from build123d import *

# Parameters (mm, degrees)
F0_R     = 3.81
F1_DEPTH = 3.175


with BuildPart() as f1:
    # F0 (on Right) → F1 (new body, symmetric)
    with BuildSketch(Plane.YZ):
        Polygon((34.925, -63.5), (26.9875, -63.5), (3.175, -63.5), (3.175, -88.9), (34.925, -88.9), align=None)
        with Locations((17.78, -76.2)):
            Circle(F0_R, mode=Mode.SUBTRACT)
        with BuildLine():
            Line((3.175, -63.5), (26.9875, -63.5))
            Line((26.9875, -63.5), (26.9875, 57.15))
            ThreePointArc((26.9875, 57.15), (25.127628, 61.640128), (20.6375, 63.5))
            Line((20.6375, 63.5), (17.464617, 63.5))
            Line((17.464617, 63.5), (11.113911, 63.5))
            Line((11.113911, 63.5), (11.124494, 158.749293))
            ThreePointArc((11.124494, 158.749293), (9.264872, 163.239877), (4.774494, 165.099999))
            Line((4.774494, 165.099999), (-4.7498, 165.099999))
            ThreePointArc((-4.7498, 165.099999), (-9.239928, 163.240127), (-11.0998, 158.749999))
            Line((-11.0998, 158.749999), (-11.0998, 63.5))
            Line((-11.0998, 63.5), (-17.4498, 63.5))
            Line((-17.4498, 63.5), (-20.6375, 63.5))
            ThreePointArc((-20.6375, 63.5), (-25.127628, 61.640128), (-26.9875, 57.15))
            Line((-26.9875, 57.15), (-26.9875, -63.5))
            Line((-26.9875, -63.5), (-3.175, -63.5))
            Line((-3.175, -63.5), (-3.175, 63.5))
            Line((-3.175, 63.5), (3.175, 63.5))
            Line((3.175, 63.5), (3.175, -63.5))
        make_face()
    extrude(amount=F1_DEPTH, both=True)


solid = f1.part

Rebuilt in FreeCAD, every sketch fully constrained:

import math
import FreeCAD as App
import Part
import Sketcher
Q = App.Units.Quantity

doc = App.newDocument("Part")
body = doc.addObject("PartDesign::Body", "Body")

# Sketch on YZ plane
sketch1 = body.newObject("Sketcher::SketchObject", "Sketch")
sketch1.AttachmentSupport = (doc.getObject("YZ_Plane"), [""])
sketch1.MapMode = "FlatFace"
sketch1.addGeometry([
    Part.LineSegment(App.Vector(34.925, -63.5, 0), App.Vector(26.9875, -63.5, 0)),  # 0
    Part.LineSegment(App.Vector(26.9875, -63.5, 0), App.Vector(26.9875, 57.15, 0)),  # 1
    Part.ArcOfCircle(Part.Circle(App.Vector(20.6375, 57.15, 0), App.Vector(0, 0, 1), 6.35), math.radians(0.000002), math.radians(89.999998)),  # 2
    Part.LineSegment(App.Vector(20.6375, 63.5, 0), App.Vector(11.113911, 63.5, 0)),  # 3
    Part.LineSegment(App.Vector(11.113911, 63.5, 0), App.Vector(11.124494, 158.749293, 0)),  # 4
    Part.ArcOfCircle(Part.Circle(App.Vector(4.774494, 158.749999, 0), App.Vector(0, 0, 1), 6.35), math.radians(-0.006368), math.radians(89.999998)),  # 5
    Part.LineSegment(App.Vector(4.774494, 165.099999, 0), App.Vector(-4.7498, 165.099999, 0)),  # 6
    Part.ArcOfCircle(Part.Circle(App.Vector(-4.7498, 158.749999, 0), App.Vector(0, 0, 1), 6.35), math.radians(90.000002), math.radians(179.999998)),  # 7
    Part.LineSegment(App.Vector(-11.0998, 158.749999, 0), App.Vector(-11.0998, 63.5, 0)),  # 8
    Part.LineSegment(App.Vector(-11.0998, 63.5, 0), App.Vector(-20.6375, 63.5, 0)),  # 9
    Part.ArcOfCircle(Part.Circle(App.Vector(-20.6375, 57.15, 0), App.Vector(0, 0, 1), 6.35), math.radians(90.000002), math.radians(179.999998)),  # 10
    Part.LineSegment(App.Vector(-26.9875, 57.15, 0), App.Vector(-26.9875, -63.5, 0)),  # 11
    Part.LineSegment(App.Vector(-26.9875, -63.5, 0), App.Vector(-3.175, -63.5, 0)),  # 12
    Part.LineSegment(App.Vector(-3.175, -63.5, 0), App.Vector(-3.175, 63.5, 0)),  # 13
    Part.LineSegment(App.Vector(-3.175, 63.5, 0), App.Vector(3.175, 63.5, 0)),  # 14
    Part.LineSegment(App.Vector(3.175, 63.5, 0), App.Vector(3.175, -88.9, 0)),  # 15
    Part.LineSegment(App.Vector(3.175, -88.9, 0), App.Vector(34.925, -88.9, 0)),  # 16
    Part.LineSegment(App.Vector(34.925, -88.9, 0), App.Vector(34.925, -63.5, 0)),  # 17
    Part.Circle(App.Vector(17.78, -76.2, 0), App.Vector(0, 0, 1), 3.81),  # 18
], False)
sketch1.addConstraint([
    Sketcher.Constraint("Coincident", 0, 2, 1, 1),
    Sketcher.Constraint("Tangent", 1, 2, 2, 1),
    Sketcher.Constraint("Tangent", 2, 2, 3, 1),
    Sketcher.Constraint("Coincident", 3, 2, 4, 1),
    Sketcher.Constraint("Tangent", 4, 2, 5, 1),
    Sketcher.Constraint("Tangent", 5, 2, 6, 1),
    Sketcher.Constraint("Tangent", 6, 2, 7, 1),
    Sketcher.Constraint("Tangent", 7, 2, 8, 1),
    Sketcher.Constraint("Coincident", 8, 2, 9, 1),
    Sketcher.Constraint("Tangent", 9, 2, 10, 1),
    Sketcher.Constraint("Tangent", 10, 2, 11, 1),
    Sketcher.Constraint("Coincident", 11, 2, 12, 1),
    Sketcher.Constraint("Coincident", 12, 2, 13, 1),
    Sketcher.Constraint("Coincident", 13, 2, 14, 1),
    Sketcher.Constraint("Coincident", 14, 2, 15, 1),
    Sketcher.Constraint("Coincident", 15, 2, 16, 1),
    Sketcher.Constraint("Coincident", 16, 2, 17, 1),
    Sketcher.Constraint("Coincident", 17, 2, 0, 1),
    Sketcher.Constraint("Horizontal", 0),
    Sketcher.Constraint("Vertical", 1),
    Sketcher.Constraint("Horizontal", 3),
    Sketcher.Constraint("Horizontal", 6),
    Sketcher.Constraint("Vertical", 8),
    Sketcher.Constraint("Horizontal", 9),
    Sketcher.Constraint("Vertical", 11),
    Sketcher.Constraint("Horizontal", 12),
    Sketcher.Constraint("Vertical", 13),
    Sketcher.Constraint("Horizontal", 14),
    Sketcher.Constraint("Vertical", 15),
    Sketcher.Constraint("Horizontal", 16),
    Sketcher.Constraint("Vertical", 17),
    Sketcher.Constraint("Equal", 2, 5),
    Sketcher.Constraint("Equal", 5, 7),
    Sketcher.Constraint("Equal", 7, 10),
    Sketcher.Constraint("Symmetric", 12, 2, 14, 2, -1, 1),
    Sketcher.Constraint("Symmetric", 2, 3, 10, 3, -2),
    Sketcher.Constraint("Horizontal", 0, 2, 11, 2),
    Sketcher.Constraint("Horizontal", 9, 2, 13, 2),
    Sketcher.Constraint("Diameter", 18, Q("0.3 in")),
    Sketcher.Constraint("DistanceY", 13, 1, 13, 2, Q("5 in")),
    Sketcher.Constraint("DistanceY", 15, 2, 15, 1, Q("6 in")),
    Sketcher.Constraint("Radius", 2, Q("0.25 in")),
    Sketcher.Constraint("DistanceY", 18, 3, -1, 1, Q("3 in")),
    Sketcher.Constraint("DistanceY", 2, 3, 5, 3, Q("4 in")),
    Sketcher.Constraint("DistanceX", 14, 1, 14, 2, Q("0.25 in")),
    Sketcher.Constraint("DistanceX", 16, 1, 16, 2, Q("1.25 in")),
    Sketcher.Constraint("DistanceX", -1, 1, 18, 3, Q("0.7 in")),
    Sketcher.Constraint("DistanceX", 0, 2, 0, 1, Q("0.3125 in")),
    Sketcher.Constraint("DistanceX", 9, 2, 9, 1, Q("0.3755 in")),
    Sketcher.Constraint("DistanceX", 3, 2, 3, 1, Q("9.523589 mm")),
    Sketcher.Constraint("DistanceX", 6, 2, 6, 1, Q("9.524294 mm")),
])
pad1 = body.newObject("PartDesign::Pad", "Pad")
pad1.Profile = sketch1
pad1.Length = Q("0.25 in")
pad1.Midplane = True

doc.recompute()
